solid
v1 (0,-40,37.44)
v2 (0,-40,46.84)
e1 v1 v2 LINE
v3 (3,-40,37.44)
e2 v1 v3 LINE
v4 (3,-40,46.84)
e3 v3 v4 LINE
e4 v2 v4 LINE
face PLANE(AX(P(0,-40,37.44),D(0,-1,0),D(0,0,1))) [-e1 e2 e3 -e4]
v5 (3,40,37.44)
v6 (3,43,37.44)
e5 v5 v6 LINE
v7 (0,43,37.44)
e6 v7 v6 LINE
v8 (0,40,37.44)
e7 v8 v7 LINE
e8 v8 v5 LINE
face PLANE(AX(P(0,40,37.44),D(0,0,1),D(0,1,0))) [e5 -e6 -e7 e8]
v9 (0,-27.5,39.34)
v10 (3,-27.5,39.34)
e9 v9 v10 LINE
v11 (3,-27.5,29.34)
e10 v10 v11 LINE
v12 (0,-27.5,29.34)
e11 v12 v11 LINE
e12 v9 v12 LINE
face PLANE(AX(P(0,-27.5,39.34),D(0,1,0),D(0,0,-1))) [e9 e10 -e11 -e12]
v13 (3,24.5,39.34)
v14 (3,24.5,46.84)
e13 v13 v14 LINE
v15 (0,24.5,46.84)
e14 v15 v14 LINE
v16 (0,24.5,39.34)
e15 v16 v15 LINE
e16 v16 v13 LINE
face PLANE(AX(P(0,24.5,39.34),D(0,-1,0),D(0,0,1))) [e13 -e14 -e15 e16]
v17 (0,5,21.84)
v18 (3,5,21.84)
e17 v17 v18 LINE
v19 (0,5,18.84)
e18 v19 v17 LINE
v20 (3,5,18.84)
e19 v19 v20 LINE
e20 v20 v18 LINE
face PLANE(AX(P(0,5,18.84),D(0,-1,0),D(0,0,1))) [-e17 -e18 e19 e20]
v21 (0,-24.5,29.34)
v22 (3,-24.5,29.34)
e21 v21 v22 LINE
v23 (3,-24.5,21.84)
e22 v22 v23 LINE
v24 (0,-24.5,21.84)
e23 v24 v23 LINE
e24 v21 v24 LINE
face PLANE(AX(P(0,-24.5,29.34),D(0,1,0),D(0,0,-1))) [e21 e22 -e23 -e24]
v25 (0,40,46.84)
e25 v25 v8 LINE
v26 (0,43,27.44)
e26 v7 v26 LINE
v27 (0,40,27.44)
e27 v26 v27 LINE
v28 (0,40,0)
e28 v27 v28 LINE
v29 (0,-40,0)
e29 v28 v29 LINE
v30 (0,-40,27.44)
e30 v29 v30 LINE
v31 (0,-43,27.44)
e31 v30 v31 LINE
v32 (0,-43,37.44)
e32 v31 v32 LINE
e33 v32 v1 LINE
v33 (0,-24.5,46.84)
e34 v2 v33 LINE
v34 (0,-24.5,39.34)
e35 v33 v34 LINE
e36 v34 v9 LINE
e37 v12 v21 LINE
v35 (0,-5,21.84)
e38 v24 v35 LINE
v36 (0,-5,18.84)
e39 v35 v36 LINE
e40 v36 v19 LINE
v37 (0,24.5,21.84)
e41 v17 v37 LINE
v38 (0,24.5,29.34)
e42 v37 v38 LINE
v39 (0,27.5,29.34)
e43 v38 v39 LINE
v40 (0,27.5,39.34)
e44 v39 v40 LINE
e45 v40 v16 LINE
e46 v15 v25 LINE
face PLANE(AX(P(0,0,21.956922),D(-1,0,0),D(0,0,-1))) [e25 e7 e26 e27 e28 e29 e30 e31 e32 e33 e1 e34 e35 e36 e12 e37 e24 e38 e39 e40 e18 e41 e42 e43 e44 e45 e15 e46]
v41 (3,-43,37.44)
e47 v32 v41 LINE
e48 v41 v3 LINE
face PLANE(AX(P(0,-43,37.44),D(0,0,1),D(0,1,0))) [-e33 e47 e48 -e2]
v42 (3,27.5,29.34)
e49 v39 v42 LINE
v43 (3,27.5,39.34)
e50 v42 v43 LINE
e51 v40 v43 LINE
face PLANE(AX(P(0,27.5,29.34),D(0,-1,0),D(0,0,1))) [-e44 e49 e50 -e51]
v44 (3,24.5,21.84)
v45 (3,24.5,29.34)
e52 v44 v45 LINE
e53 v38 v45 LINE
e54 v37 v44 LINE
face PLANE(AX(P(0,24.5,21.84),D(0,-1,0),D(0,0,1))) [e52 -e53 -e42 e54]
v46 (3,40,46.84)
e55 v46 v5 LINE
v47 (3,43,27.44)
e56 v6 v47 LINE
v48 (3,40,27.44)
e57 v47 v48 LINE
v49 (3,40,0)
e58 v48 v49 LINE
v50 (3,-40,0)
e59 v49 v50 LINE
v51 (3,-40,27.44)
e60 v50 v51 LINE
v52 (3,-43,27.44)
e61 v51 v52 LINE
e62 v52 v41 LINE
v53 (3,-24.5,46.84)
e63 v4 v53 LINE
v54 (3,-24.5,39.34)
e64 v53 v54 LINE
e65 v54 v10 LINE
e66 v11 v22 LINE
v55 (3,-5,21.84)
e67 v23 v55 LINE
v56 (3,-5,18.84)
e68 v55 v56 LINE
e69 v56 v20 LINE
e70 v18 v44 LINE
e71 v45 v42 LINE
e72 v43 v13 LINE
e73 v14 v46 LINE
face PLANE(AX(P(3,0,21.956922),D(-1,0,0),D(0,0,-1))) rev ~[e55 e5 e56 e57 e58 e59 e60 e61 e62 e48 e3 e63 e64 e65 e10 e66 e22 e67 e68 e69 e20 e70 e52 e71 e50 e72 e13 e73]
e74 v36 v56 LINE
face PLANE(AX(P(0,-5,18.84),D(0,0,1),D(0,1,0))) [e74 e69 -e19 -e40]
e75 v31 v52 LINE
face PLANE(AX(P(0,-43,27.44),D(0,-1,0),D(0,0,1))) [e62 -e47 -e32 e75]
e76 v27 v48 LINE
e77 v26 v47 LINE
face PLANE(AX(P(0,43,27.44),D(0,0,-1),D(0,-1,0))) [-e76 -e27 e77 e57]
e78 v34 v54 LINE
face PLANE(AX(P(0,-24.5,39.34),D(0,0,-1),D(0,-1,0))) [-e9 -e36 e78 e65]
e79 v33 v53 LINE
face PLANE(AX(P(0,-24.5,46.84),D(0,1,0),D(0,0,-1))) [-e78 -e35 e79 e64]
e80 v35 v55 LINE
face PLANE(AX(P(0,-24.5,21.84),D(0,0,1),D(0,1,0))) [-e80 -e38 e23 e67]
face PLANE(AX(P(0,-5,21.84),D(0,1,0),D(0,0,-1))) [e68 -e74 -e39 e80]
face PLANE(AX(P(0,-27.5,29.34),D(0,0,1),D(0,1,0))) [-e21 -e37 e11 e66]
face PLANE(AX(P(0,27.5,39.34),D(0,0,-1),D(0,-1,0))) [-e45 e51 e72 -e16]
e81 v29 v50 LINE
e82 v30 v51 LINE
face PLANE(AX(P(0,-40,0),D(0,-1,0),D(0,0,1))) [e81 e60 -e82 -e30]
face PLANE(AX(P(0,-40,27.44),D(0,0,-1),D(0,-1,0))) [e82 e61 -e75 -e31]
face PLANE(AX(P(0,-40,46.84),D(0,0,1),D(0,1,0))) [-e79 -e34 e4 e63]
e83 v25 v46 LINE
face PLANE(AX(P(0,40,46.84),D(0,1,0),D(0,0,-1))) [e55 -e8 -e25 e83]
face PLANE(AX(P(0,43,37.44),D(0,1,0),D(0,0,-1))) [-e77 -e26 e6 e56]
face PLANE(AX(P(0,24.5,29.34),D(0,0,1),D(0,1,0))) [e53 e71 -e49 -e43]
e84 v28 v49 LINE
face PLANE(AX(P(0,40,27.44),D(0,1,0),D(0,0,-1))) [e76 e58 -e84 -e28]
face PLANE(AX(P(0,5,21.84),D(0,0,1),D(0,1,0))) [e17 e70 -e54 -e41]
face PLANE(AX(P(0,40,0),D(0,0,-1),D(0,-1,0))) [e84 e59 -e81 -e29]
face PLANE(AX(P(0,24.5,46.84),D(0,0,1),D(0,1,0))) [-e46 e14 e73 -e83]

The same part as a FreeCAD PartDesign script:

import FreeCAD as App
import Part
import Sketcher
from FreeCAD import Vector


def add_polygon(sketch, points):
    """Adds a closed chain of lines whose ends are joined by coincident constraints."""
    first, n = sketch.GeometryCount, len(points)
    for a, b in zip(points, points[1:] + points[:1]):
        sketch.addGeometry(Part.LineSegment(App.Vector(*a, 0), App.Vector(*b, 0)), False)
    for i in range(n):
        sketch.addConstraint(Sketcher.Constraint("Coincident", first + i, 2, first + (i + 1) % n, 1))

doc = App.newDocument("Part")
body = doc.addObject("PartDesign::Body", "Body")

sketch1 = doc.addObject("Sketcher::SketchObject", "Sketch")
body.addObject(sketch1)
sketch1.AttachmentSupport = (doc.YZ_Plane, [""])
sketch1.MapMode = "FlatFace"
add_polygon(sketch1, [(40, 46.8), (24.5, 46.8), (24.5, 39.3), (27.5, 39.3), (27.5, 29.3), (24.5, 29.3), (24.5, 21.8), (5, 21.8), (5, 18.8), (-5, 18.8), (-5, 21.8), (-24.5, 21.8), (-24.5, 29.3), (-27.5, 29.3), (-27.5, 39.3), (-24.5, 39.3), (-24.5, 46.8), (-40, 46.8), (-40, 37.4), (-43, 37.4), (-43, 27.4), (-40, 27.4), (-40, 0), (40, 0), (40, 27.4), (43, 27.4), (43, 37.4), (40, 37.4)])
sketch1.addConstraint([
    Sketcher.Constraint("Horizontal", 0),
    Sketcher.Constraint("Vertical", 1),
    Sketcher.Constraint("Horizontal", 2),
    Sketcher.Constraint("Vertical", 3),
    Sketcher.Constraint("Horizontal", 4),
    Sketcher.Constraint("Vertical", 5),
    Sketcher.Constraint("Horizontal", 6),
    Sketcher.Constraint("Vertical", 7),
    Sketcher.Constraint("Horizontal", 8),
    Sketcher.Constraint("Vertical", 9),
    Sketcher.Constraint("Horizontal", 10),
    Sketcher.Constraint("Vertical", 11),
    Sketcher.Constraint("Horizontal", 12),
    Sketcher.Constraint("Vertical", 13),
    Sketcher.Constraint("Horizontal", 14),
    Sketcher.Constraint("Vertical", 15),
    Sketcher.Constraint("Horizontal", 16),
    Sketcher.Constraint("Vertical", 17),
    Sketcher.Constraint("Horizontal", 18),
    Sketcher.Constraint("Vertical", 19),
    Sketcher.Constraint("Horizontal", 20),
    Sketcher.Constraint("Vertical", 21),
    Sketcher.Constraint("Horizontal", 22),
    Sketcher.Constraint("Vertical", 23),
    Sketcher.Constraint("Horizontal", 24),
    Sketcher.Constraint("Vertical", 25),
    Sketcher.Constraint("Horizontal", 26),
    Sketcher.Constraint("Vertical", 27),
    Sketcher.Constraint("Symmetric", 21, 2, 22, 2, -1, 1),
    Sketcher.Constraint("Symmetric", 6, 2, 9, 2, -2),
    Sketcher.Constraint("Symmetric", 4, 2, 11, 2, -2),
    Sketcher.Constraint("Symmetric", 2, 2, 13, 2, -2),
    Sketcher.Constraint("Symmetric", 0, 2, 15, 2, -2),
    Sketcher.Constraint("Symmetric", 19, 2, 24, 2, -2),
    Sketcher.Constraint("Symmetric", 17, 2, 26, 2, -2),
    Sketcher.Constraint("Vertical", 1, 2, 4, 2),
    Sketcher.Constraint("Vertical", 17, 2, 20, 2),
    Sketcher.Constraint("Equal", 14, 18),
    Sketcher.Constraint("Equal", 8, 3),
    Sketcher.Constraint("Equal", 1, 5),
    Sketcher.Constraint("Equal", 26, 7),
    Sketcher.Constraint("Equal", 13, 19),
    Sketcher.Constraint("DistanceX", -1, 1, 6, 2, 5.0),
    Sketcher.Constraint("DistanceX", 16, 2, -1, 1, 40.0),
    Sketcher.Constraint("DistanceX", 18, 2, -1, 1, 43.0),
    Sketcher.Constraint("DistanceX", -1, 1, 0, 2, 24.5),
    Sketcher.Constraint("DistanceY", 1, 2, 1, 1, 7.5),
    Sketcher.Constraint("DistanceY", 17, 2, 17, 1, 9.4),
    Sketcher.Constraint("DistanceY", 21, 2, 21, 1, 27.44),
])
pad1 = doc.addObject("PartDesign::Pad", "Pad")
body.addObject(pad1)
pad1.Profile = sketch1
pad1.Length = 3

doc.recompute()
